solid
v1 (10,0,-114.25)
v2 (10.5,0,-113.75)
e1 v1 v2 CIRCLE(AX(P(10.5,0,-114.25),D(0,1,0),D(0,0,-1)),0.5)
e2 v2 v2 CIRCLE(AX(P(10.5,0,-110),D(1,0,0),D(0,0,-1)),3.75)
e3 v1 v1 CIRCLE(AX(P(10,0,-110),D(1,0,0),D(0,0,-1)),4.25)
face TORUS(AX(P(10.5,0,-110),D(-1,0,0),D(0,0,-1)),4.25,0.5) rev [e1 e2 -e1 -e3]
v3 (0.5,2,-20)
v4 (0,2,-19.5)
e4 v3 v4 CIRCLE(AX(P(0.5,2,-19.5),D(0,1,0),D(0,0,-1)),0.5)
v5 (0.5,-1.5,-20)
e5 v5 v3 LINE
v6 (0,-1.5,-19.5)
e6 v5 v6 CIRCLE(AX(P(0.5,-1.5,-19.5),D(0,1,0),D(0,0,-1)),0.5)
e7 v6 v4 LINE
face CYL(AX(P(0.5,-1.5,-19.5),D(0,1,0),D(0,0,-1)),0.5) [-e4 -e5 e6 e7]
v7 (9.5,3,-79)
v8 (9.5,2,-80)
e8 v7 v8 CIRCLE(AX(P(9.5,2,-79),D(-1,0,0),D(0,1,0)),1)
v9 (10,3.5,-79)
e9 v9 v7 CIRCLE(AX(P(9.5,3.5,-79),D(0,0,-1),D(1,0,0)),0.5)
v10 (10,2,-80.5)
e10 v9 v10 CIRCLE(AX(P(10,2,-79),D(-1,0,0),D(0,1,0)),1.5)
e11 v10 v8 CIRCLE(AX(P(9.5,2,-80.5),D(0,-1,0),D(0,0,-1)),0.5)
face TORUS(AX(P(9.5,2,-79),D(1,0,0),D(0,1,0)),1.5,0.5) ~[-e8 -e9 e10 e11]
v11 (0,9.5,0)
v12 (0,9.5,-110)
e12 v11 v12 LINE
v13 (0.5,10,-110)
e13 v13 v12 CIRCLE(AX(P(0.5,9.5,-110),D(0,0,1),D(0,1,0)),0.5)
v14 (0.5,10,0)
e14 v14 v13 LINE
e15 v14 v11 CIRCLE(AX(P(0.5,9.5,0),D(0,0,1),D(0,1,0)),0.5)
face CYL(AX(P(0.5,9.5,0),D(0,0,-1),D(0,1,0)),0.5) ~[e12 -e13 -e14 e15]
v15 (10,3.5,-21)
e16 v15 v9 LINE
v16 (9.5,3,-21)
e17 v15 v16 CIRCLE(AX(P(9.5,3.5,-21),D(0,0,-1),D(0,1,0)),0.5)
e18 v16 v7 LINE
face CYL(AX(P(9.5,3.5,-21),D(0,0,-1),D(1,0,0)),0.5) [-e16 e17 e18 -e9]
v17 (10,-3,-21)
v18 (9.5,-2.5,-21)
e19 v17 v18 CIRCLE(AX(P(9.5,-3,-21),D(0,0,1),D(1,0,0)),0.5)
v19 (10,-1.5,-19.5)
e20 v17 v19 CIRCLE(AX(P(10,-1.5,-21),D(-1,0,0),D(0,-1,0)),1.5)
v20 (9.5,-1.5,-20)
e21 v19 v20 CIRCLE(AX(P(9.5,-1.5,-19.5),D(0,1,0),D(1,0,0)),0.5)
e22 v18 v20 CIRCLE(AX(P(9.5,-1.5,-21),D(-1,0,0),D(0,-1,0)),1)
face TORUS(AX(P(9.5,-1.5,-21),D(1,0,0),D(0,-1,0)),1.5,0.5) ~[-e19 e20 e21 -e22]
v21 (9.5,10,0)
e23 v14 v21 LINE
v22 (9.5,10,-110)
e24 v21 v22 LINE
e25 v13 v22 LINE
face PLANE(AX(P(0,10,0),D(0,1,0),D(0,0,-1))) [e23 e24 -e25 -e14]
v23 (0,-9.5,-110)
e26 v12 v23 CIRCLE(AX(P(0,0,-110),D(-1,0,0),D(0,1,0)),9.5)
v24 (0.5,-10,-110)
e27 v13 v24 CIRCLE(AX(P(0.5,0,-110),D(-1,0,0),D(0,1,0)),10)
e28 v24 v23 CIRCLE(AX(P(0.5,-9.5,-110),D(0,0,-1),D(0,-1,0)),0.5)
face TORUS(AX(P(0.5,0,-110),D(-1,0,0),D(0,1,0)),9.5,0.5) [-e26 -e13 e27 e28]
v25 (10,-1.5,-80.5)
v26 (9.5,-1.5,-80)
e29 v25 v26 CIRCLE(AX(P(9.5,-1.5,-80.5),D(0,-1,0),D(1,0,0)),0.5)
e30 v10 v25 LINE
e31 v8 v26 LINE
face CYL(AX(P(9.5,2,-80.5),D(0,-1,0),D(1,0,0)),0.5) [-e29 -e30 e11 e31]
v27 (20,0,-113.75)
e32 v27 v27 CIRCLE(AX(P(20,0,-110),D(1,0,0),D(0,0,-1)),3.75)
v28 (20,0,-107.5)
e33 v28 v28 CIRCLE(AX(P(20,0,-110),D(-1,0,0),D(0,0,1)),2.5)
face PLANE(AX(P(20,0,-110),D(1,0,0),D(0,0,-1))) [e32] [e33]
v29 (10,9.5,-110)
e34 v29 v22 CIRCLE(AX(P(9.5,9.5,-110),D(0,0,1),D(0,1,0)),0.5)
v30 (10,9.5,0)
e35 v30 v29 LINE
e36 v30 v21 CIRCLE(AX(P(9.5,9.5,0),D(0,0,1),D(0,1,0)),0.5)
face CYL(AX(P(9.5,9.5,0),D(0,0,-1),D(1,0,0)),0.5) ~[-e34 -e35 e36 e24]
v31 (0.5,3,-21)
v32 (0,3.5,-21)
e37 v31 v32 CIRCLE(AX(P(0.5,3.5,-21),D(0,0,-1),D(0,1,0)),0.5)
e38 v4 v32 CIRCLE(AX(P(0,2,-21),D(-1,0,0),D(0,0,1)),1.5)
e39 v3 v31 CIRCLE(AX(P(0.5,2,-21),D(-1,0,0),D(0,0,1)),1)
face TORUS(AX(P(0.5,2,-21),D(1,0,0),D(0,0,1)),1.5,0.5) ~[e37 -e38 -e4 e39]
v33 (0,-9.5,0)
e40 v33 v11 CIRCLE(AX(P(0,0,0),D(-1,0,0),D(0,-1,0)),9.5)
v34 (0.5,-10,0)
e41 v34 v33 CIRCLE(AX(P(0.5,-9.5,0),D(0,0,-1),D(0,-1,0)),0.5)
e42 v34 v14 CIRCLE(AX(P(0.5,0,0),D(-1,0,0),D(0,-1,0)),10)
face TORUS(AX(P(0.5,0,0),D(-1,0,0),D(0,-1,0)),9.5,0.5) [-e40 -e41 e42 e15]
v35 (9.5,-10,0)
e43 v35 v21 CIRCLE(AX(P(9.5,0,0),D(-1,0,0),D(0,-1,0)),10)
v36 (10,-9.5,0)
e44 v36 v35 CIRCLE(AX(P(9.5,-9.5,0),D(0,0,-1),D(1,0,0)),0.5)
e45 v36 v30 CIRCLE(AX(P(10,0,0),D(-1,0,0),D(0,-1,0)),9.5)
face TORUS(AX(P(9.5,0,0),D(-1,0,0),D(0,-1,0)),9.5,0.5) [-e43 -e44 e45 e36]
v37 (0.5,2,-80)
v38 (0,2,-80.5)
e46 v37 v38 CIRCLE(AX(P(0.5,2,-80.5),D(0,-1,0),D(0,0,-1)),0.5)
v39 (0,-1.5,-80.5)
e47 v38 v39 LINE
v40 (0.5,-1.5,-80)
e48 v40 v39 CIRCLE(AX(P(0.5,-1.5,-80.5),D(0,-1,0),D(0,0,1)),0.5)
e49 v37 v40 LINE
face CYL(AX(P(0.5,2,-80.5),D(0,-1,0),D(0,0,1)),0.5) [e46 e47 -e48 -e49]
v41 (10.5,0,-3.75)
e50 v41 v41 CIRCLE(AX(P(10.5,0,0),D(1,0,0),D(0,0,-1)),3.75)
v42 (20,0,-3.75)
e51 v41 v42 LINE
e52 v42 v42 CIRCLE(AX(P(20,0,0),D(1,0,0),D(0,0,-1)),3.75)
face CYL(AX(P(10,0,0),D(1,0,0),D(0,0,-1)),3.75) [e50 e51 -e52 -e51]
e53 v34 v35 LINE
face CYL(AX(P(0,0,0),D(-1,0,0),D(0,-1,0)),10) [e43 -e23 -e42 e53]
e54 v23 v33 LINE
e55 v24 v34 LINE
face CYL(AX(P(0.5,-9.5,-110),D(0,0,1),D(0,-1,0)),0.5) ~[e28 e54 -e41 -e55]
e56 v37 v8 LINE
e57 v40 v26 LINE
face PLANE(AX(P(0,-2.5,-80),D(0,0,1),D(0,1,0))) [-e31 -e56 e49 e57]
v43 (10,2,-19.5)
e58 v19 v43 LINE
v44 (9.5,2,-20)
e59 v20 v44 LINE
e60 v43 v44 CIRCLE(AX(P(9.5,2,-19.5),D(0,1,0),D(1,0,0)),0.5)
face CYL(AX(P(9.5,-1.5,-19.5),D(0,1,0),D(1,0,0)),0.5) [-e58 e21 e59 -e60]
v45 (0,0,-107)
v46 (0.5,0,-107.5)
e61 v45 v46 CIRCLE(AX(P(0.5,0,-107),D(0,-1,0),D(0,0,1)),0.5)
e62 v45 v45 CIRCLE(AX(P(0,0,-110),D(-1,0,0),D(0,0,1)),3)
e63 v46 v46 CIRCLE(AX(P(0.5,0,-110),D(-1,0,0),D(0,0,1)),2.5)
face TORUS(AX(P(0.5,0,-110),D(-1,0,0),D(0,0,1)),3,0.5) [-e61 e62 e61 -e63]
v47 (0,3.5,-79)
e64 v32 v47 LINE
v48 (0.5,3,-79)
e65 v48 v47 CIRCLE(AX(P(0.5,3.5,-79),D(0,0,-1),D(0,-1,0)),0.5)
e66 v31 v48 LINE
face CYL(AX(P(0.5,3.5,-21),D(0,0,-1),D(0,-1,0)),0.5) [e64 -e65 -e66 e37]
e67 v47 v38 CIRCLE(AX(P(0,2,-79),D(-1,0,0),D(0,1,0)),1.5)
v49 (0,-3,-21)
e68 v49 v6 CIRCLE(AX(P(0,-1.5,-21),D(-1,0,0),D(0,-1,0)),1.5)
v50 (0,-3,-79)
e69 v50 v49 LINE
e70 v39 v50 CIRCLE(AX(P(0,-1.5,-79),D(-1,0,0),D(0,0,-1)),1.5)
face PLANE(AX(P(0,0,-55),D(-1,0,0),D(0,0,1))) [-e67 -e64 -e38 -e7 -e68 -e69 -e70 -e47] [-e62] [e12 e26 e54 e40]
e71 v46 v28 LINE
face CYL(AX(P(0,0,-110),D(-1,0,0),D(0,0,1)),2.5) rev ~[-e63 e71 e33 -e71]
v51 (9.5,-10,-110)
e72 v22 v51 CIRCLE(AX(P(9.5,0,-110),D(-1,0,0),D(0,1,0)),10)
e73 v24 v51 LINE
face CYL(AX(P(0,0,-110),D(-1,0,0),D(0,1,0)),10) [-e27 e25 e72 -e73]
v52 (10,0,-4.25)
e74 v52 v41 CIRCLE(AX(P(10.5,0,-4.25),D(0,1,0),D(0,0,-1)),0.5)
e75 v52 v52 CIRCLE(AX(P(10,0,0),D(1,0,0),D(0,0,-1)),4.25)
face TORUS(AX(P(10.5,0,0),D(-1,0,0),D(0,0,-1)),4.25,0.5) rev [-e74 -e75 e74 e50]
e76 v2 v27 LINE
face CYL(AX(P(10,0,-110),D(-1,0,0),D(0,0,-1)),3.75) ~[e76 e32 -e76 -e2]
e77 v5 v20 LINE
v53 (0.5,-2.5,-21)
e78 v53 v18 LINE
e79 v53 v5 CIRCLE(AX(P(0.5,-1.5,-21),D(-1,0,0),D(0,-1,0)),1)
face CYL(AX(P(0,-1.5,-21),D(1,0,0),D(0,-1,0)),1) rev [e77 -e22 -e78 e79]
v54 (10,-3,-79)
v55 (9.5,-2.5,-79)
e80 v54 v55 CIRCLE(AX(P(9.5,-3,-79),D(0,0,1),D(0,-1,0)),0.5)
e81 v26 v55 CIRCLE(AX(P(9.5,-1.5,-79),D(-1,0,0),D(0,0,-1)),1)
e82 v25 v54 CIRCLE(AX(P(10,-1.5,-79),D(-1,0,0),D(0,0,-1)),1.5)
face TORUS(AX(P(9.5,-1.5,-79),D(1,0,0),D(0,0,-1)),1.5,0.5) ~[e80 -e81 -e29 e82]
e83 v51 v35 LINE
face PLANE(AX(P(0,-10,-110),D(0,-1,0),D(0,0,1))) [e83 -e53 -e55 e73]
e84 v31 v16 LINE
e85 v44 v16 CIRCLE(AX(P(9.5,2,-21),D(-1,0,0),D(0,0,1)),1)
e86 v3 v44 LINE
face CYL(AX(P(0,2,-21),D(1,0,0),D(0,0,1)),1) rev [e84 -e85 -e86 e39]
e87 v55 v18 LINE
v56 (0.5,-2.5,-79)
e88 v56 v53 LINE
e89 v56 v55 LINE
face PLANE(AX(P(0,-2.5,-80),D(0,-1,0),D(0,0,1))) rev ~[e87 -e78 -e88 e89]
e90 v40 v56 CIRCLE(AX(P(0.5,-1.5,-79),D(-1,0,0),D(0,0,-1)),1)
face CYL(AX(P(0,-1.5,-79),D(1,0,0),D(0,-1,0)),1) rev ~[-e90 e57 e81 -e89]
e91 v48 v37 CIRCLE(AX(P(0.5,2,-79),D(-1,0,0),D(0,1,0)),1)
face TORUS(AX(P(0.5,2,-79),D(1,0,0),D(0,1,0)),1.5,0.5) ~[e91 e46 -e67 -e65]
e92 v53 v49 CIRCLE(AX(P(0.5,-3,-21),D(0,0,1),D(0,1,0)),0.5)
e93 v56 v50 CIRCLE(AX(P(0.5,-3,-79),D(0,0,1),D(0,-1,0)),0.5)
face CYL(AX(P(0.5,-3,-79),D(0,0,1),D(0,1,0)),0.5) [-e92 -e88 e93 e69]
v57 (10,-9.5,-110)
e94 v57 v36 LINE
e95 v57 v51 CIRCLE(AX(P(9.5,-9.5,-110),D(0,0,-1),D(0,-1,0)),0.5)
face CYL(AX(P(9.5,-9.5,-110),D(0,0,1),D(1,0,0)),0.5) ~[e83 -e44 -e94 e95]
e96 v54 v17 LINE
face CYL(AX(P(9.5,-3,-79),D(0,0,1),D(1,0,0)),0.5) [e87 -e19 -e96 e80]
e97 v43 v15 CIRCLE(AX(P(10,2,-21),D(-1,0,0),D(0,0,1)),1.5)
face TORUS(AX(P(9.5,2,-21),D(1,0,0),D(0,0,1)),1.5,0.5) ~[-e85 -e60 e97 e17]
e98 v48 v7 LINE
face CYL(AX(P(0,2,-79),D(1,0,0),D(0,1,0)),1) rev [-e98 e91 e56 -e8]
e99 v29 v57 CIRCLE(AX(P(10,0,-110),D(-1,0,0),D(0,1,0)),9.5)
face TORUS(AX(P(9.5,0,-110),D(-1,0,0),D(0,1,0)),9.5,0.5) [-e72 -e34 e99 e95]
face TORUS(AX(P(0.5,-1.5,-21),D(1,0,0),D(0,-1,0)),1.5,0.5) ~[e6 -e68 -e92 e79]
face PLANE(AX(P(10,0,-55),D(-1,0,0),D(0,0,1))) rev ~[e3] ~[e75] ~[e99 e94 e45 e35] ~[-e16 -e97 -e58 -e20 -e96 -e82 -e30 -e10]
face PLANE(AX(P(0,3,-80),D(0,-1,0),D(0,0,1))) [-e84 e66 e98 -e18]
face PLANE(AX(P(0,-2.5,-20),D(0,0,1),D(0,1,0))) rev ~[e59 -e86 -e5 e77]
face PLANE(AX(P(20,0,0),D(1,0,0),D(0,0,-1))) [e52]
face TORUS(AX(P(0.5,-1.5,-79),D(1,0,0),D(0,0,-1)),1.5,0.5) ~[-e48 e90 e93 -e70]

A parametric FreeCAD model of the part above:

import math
import FreeCAD as App
import Part
import Sketcher
from FreeCAD import Vector


def edges_at(feature, points):
    """Names of the edges that pass closest to the given points."""
    edges = feature.Shape.Edges
    near = lambda p: min(range(len(edges)), key=lambda i: edges[i].distToShape(Part.Vertex(*p))[0])
    return sorted({f"Edge{near(p) + 1}" for p in points})

doc = App.newDocument("Part")
params = doc.addObject("Spreadsheet::Sheet", "Params")
for row, (alias, value) in enumerate([
    ("sketch1_radius", "10 mm"),
    ("sketch1_diameter", "7.5 mm"),
    ("sketch1_height", "110 mm"),
    ("pad1_length", "10 mm"),
    ("sketch2_diameter", "7.5 mm"),
    ("pad2_length", "20 mm"),
    ("sketch3_diameter", "5 mm"),
    ("sketch4_height", "60 mm"),
    ("sketch4_width", "5.5 mm"),
    ("pocket2_length", "10 mm"),
    ("fillet_radius", "1 mm"),
    ("fillet2_radius", "0.5 mm"),
], start=1):
    params.set(f"A{row}", alias)
    params.set(f"B{row}", "=" + value)
    params.setAlias(f"B{row}", alias)

body = doc.addObject("PartDesign::Body", "Body")

# Sketch on YZ plane
sketch1 = body.newObject("Sketcher::SketchObject", "Sketch")
sketch1.AttachmentSupport = (doc.getObject("YZ_Plane"), [""])
sketch1.MapMode = "FlatFace"
sketch1.addGeometry(Part.LineSegment(Vector(10, -110, 0), Vector(10, 0, 0)), False)
sketch1.addGeometry(Part.ArcOfCircle(Part.Circle(Vector(0, 0, 0), Vector(0, 0, 1), 10), math.radians(0), math.radians(180)), False)
sketch1.addGeometry(Part.LineSegment(Vector(-10, 0, 0), Vector(-10, -110, 0)), False)
sketch1.addGeometry(Part.ArcOfCircle(Part.Circle(Vector(0, -110, 0), Vector(0, 0, 1), 10), math.radians(180), math.radians(360)), False)
sketch1.addGeometry(Part.Circle(Vector(0, -110, 0), Vector(0, 0, 1), 3.8), False)
sketch1.addGeometry(Part.Circle(Vector(0, 0, 0), Vector(0, 0, 1), 3.8), False)
sketch1.addConstraint(Sketcher.Constraint("Tangent", 0, 2, 1, 1))
sketch1.addConstraint(Sketcher.Constraint("Tangent", 1, 2, 2, 1))
sketch1.addConstraint(Sketcher.Constraint("Tangent", 2, 2, 3, 1))
sketch1.addConstraint(Sketcher.Constraint("Tangent", 3, 2, 0, 1))
sketch1.addConstraint(Sketcher.Constraint("Vertical", 0))
sketch1.addConstraint(Sketcher.Constraint("Vertical", 2))
sketch1.addConstraint(Sketcher.Constraint("Coincident", 1, 3, -1, 1))
sketch1.addConstraint(Sketcher.Constraint("Coincident", 5, 3, -1, 1))
sketch1.addConstraint(Sketcher.Constraint("Coincident", 4, 3, 3, 3))
sketch1.addConstraint(Sketcher.Constraint("Equal", 4, 5))
sketch1.addConstraint(Sketcher.Constraint("Radius", 1, 10.0))
sketch1.addConstraint(Sketcher.Constraint("Diameter", 4, 7.5))
sketch1.addConstraint(Sketcher.Constraint("DistanceY", 0, 1, 0, 2, 110.0))
sketch1.setExpression("Constraints[10]", "Params.sketch1_radius")
sketch1.setExpression("Constraints[11]", "Params.sketch1_diameter")
sketch1.setExpression("Constraints[12]", "Params.sketch1_height")
pad1 = body.newObject("PartDesign::Pad", "Pad")
pad1.Profile = sketch1
pad1.setExpression("Length", "Params.pad1_length")

# Sketch on YZ plane
sketch2 = body.newObject("Sketcher::SketchObject", "Sketch001")
sketch2.AttachmentSupport = (doc.getObject("YZ_Plane"), [""])
sketch2.MapMode = "FlatFace"
sketch2.AttachmentOffset = App.Placement(Vector(0, 0, 10), App.Rotation())
sketch2.addGeometry(Part.Circle(Vector(0, -110, 0), Vector(0, 0, 1), 3.8), False)
sketch2.addGeometry(Part.Circle(Vector(0, 0, 0), Vector(0, 0, 1), 3.8), False)
sketch2.addConstraint(Sketcher.Constraint("Coincident", 1, 3, -1, 1))
sketch2.addConstraint(Sketcher.Constraint("Equal", 0, 1))
sketch2.addConstraint(Sketcher.Constraint("PointOnObject", 0, 3, -2))
sketch2.addConstraint(Sketcher.Constraint("Diameter", 0, 7.5))
sketch2.addConstraint(Sketcher.Constraint("DistanceY", 0, 3, -1, 1, 110.0))
sketch2.setExpression("Constraints[3]", "Params.sketch2_diameter")
pad2 = body.newObject("PartDesign::Pad", "Pad001")
pad2.Profile = sketch2
pad2.setExpression("Length", "Params.pad2_length")
pad2.Midplane = True

# Sketch on YZ plane
sketch3 = body.newObject("Sketcher::SketchObject", "Sketch002")
sketch3.AttachmentSupport = (doc.getObject("YZ_Plane"), [""])
sketch3.MapMode = "FlatFace"
sketch3.addGeometry(Part.Circle(Vector(0, -110, 0), Vector(0, 0, 1), 2.5), False)
sketch3.addConstraint(Sketcher.Constraint("PointOnObject", 0, 3, -2))
sketch3.addConstraint(Sketcher.Constraint("Diameter", 0, 5.0))
sketch3.addConstraint(Sketcher.Constraint("DistanceY", 0, 3, -1, 1, 110.0))
sketch3.setExpression("Constraints[1]", "Params.sketch3_diameter")
pocket1 = body.newObject("PartDesign::Pocket", "Pocket")
pocket1.Profile = sketch3
pocket1.Type = "ThroughAll"
pocket1.Reversed = True

# Sketch on YZ plane
sketch4 = body.newObject("Sketcher::SketchObject", "Sketch003")
sketch4.AttachmentSupport = (doc.getObject("YZ_Plane"), [""])
sketch4.MapMode = "FlatFace"
sketch4.addGeometry(Part.LineSegment(Vector(3, -80, 0), Vector(-2, -80, 0)), False)
sketch4.addGeometry(Part.LineSegment(Vector(-2, -80, 0), Vector(-2, -20, 0)), False)
sketch4.addGeometry(Part.LineSegment(Vector(-2, -20, 0), Vector(3, -20, 0)), False)
sketch4.addGeometry(Part.LineSegment(Vector(3, -20, 0), Vector(3, -80, 0)), False)
sketch4.addConstraint(Sketcher.Constraint("Coincident", 0, 2, 1, 1))
sketch4.addConstraint(Sketcher.Constraint("Coincident", 1, 2, 2, 1))
sketch4.addConstraint(Sketcher.Constraint("Coincident", 2, 2, 3, 1))
sketch4.addConstraint(Sketcher.Constraint("Coincident", 3, 2, 0, 1))
sketch4.addConstraint(Sketcher.Constraint("Horizontal", 0))
sketch4.addConstraint(Sketcher.Constraint("Vertical", 1))
sketch4.addConstraint(Sketcher.Constraint("Horizontal", 2))
sketch4.addConstraint(Sketcher.Constraint("Vertical", 3))
sketch4.addConstraint(Sketcher.Constraint("DistanceY", 1, 1, 1, 2, 60.0))
sketch4.addConstraint(Sketcher.Constraint("DistanceX", 0, 2, 0, 1, 5.5))
sketch4.addConstraint(Sketcher.Constraint("DistanceY", 0, 2, -1, 1, 80.0))
sketch4.addConstraint(Sketcher.Constraint("DistanceX", -1, 1, 2, 2, 3.0))
sketch4.setExpression("Constraints[8]", "Params.sketch4_height")
sketch4.setExpression("Constraints[9]", "Params.sketch4_width")
pocket2 = body.newObject("PartDesign::Pocket", "Pocket001")
pocket2.Profile = sketch4
pocket2.setExpression("Length", "Params.pocket2_length")
pocket2.Reversed = True
doc.recompute()

fillet = body.newObject("PartDesign::Fillet", "Fillet")
fillet.Base = (pocket2, edges_at(pocket2, [
    (5, -2.5, -80),
    (5, 3, -80),
    (5, 3, -20),
    (5, -2.5, -20),
]))
fillet.setExpression("Radius", "Params.fillet_radius")
doc.recompute()

fillet2 = body.newObject("PartDesign::Fillet", "Fillet001")
fillet2.Base = (fillet, edges_at(fillet, [
    (10, 0, 3.75),
    (10, 0, -120),
    (10, 0, -106.25),
    (10, 10, -55),
    (0, 0, -112.5),
    (10, 0, 10),
    (0, 10, -55),
    (0, 0, -120),
    (0, 0.25, -20),
    (10, 0.25, -20),
    (0, -10, -55),
    (0, -2.5, -50),
    (10, -2.5, -50),
    (0, 3, -50),
    (10, 3, -50),
    (0, 0, 10),
    (0, 0.25, -80),
    (10, 0.25, -80),
    (0, -2.207, -20.293),
    (10, -2.207, -20.293),
    (0, 2.707, -20.293),
    (10, 2.707, -20.293),
    (0, 2.707, -79.707),
    (10, 2.707, -79.707),
    (0, -2.207, -79.707),
    (10, -2.207, -79.707),
    (10, -10, -55),
]))
fillet2.setExpression("Radius", "Params.fillet2_radius")

doc.recompute()
